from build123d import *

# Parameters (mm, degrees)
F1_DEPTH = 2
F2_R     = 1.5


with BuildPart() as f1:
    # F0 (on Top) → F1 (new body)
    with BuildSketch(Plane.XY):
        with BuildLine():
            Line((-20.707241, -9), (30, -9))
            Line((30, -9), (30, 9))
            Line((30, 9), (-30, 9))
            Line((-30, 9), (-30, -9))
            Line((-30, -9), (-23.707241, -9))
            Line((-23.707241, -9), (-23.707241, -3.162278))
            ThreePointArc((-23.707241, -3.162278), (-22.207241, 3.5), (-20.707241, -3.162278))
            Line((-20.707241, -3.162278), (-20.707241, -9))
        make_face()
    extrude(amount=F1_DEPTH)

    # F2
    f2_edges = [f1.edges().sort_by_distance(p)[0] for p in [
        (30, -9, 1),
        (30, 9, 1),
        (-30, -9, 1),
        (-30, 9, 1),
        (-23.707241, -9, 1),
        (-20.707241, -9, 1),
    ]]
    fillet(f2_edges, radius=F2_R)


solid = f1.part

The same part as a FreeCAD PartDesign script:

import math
import FreeCAD as App
import Part
import Sketcher
from FreeCAD import Vector


def edges_at(feature, points):
    """Names of the edges that pass closest to the given points."""
    edges = feature.Shape.Edges
    near = lambda p: min(range(len(edges)), key=lambda i: edges[i].distToShape(Part.Vertex(*p))[0])
    return sorted({f"Edge{near(p) + 1}" for p in points})

doc = App.newDocument("Part")
body = doc.addObject("PartDesign::Body", "Body")

# Sketch on XY plane
sketch1 = body.newObject("Sketcher::SketchObject", "Sketch")
sketch1.AttachmentSupport = (doc.getObject("XY_Plane"), [""])
sketch1.MapMode = "FlatFace"
sketch1.addGeometry([
    Part.LineSegment(Vector(-20.7, -9, 0), Vector(30, -9, 0)),  # 0
    Part.LineSegment(Vector(30, -9, 0), Vector(30, 9, 0)),  # 1
    Part.LineSegment(Vector(30, 9, 0), Vector(-30, 9, 0)),  # 2
    Part.LineSegment(Vector(-30, 9, 0), Vector(-30, -9, 0)),  # 3
    Part.LineSegment(Vector(-30, -9, 0), Vector(-23.7, -9, 0)),  # 4
    Part.LineSegment(Vector(-23.7, -9, 0), Vector(-23.7, -3.2, 0)),  # 5
    Part.ArcOfCircle(Part.Circle(Vector(-22.2, 0, 0), Vector(0, 0, 1), 3.5), math.radians(-65), math.radians(245)),  # 6
    Part.LineSegment(Vector(-20.7, -3.2, 0), Vector(-20.7, -9, 0)),  # 7
], False)
sketch1.addConstraint([
    Sketcher.Constraint("Coincident", 0, 2, 1, 1),
    Sketcher.Constraint("Coincident", 1, 2, 2, 1),
    Sketcher.Constraint("Coincident", 2, 2, 3, 1),
    Sketcher.Constraint("Coincident", 3, 2, 4, 1),
    Sketcher.Constraint("Coincident", 4, 2, 5, 1),
    Sketcher.Constraint("Coincident", 5, 2, 6, 2),
    Sketcher.Constraint("Coincident", 6, 1, 7, 1),
    Sketcher.Constraint("Coincident", 7, 2, 0, 1),
    Sketcher.Constraint("Horizontal", 0),
    Sketcher.Constraint("Vertical", 1),
    Sketcher.Constraint("Horizontal", 2),
    Sketcher.Constraint("Vertical", 3),
    Sketcher.Constraint("Horizontal", 4),
    Sketcher.Constraint("Vertical", 5),
    Sketcher.Constraint("Vertical", 7),
    Sketcher.Constraint("Symmetric", 0, 2, 2, 2, -1, 1),
    Sketcher.Constraint("PointOnObject", 6, 3, -1),
    Sketcher.Constraint("Horizontal", 0, 2, 3, 2),
    Sketcher.Constraint("Horizontal", 5, 2, 6, 1),
    Sketcher.Constraint("Radius", 6, 3.5),
    Sketcher.Constraint("DistanceX", 2, 2, 2, 1, 60.0),
    Sketcher.Constraint("DistanceY", 1, 1, 1, 2, 18.0),
    Sketcher.Constraint("DistanceX", 5, 2, 6, 1, 3.0),
    Sketcher.Constraint("DistanceX", 0, 1, 0, 2, 50.707241),
])
pad1 = body.newObject("PartDesign::Pad", "Pad")
pad1.Profile = sketch1
pad1.Length = 2
doc.recompute()

fillet = body.newObject("PartDesign::Fillet", "Fillet")
fillet.Base = (pad1, edges_at(pad1, [
    (30, -9, 1),
    (30, 9, 1),
    (-30, -9, 1),
    (-30, 9, 1),
    (-23.707, -9, 1),
    (-20.707, -9, 1),
]))
fillet.Radius = 1.5

doc.recompute()
